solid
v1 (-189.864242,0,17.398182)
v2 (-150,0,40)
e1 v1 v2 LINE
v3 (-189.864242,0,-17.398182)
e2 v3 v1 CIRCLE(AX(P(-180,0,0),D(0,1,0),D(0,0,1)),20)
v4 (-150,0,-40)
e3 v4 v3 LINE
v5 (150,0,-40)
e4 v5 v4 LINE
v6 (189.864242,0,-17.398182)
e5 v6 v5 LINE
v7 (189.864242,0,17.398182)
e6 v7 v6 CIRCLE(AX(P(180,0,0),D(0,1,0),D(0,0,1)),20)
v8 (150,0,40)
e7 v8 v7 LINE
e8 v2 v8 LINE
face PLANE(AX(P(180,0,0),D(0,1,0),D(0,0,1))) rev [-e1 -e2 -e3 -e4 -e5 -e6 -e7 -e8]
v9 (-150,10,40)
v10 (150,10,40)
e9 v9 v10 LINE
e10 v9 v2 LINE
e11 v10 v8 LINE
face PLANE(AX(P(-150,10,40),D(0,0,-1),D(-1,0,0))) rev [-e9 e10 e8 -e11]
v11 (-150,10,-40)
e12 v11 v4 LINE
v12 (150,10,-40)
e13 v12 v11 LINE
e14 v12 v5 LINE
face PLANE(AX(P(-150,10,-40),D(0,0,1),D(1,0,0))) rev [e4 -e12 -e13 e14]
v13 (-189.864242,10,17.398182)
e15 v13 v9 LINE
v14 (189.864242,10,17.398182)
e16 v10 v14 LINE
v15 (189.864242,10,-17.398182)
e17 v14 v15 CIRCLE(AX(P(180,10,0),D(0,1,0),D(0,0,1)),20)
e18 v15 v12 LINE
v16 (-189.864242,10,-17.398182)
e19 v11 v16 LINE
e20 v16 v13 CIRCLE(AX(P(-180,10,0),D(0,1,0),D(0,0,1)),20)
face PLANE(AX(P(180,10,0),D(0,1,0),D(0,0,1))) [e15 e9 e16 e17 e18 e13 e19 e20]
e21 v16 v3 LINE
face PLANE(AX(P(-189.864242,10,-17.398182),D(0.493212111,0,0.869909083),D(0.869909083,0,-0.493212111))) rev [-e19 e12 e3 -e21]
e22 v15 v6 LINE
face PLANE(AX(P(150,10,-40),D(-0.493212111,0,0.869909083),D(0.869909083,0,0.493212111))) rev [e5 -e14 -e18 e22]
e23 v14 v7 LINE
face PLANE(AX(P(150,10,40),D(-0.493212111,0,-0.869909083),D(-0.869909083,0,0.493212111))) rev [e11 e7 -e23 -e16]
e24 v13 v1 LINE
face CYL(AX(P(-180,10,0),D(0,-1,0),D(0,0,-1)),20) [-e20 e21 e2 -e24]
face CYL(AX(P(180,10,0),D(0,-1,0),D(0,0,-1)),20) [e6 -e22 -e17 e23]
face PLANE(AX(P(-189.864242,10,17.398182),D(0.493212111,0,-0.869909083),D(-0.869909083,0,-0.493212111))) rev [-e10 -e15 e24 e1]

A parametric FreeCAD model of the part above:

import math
import FreeCAD as App
import Part
import Sketcher

V = App.Vector
Q = App.Units.Quantity

doc = App.newDocument("Part")
body = doc.addObject("PartDesign::Body", "Body")

# Sketch on XZ plane
sketch1 = body.newObject("Sketcher::SketchObject", "Sketch")
sketch1.AttachmentSupport = (doc.getObject("XZ_Plane"), [""])
sketch1.MapMode = "FlatFace"
sketch1.addGeometry([
    Part.LineSegment(V(-150, -40, 0), V(-189.864242, -17.398182, 0)),  # 0
    Part.ArcOfCircle(Part.Circle(V(-180, 0, 0), V(0, 0, 1), 20), math.radians(119.551924), math.radians(240.448076)),  # 1
    Part.LineSegment(V(-189.864242, 17.398182, 0), V(-150, 40, 0)),  # 2
    Part.LineSegment(V(-150, 40, 0), V(150, 40, 0)),  # 3
    Part.LineSegment(V(150, 40, 0), V(189.864242, 17.398182, 0)),  # 4
    Part.ArcOfCircle(Part.Circle(V(180, 0, 0), V(0, 0, 1), 20), math.radians(-60.448076), math.radians(60.448076)),  # 5
    Part.LineSegment(V(189.864242, -17.398182, 0), V(150, -40, 0)),  # 6
    Part.LineSegment(V(150, -40, 0), V(-150, -40, 0)),  # 7
], False)
sketch1.addConstraint([
    Sketcher.Constraint("Tangent", 0, 2, 1, 2),
    Sketcher.Constraint("Tangent", 1, 1, 2, 1),
    Sketcher.Constraint("Coincident", 2, 2, 3, 1),
    Sketcher.Constraint("Coincident", 3, 2, 4, 1),
    Sketcher.Constraint("Tangent", 4, 2, 5, 2),
    Sketcher.Constraint("Tangent", 5, 1, 6, 1),
    Sketcher.Constraint("Coincident", 6, 2, 7, 1),
    Sketcher.Constraint("Coincident", 7, 2, 0, 1),
    Sketcher.Constraint("Horizontal", 3),
    Sketcher.Constraint("Horizontal", 7),
    Sketcher.Constraint("Equal", 1, 5),
    Sketcher.Constraint("Symmetric", 1, 3, 5, 3, -1, 1),
    Sketcher.Constraint("Symmetric", 2, 2, 6, 2, -1, 1),
    Sketcher.Constraint("Symmetric", 1, 1, 4, 2, -2),
    Sketcher.Constraint("Parallel", 0, 4),
    Sketcher.Constraint("Radius", 1, Q("20 mm")),
    Sketcher.Constraint("DistanceX", 3, 1, 3, 2, Q("300 mm")),
    Sketcher.Constraint("DistanceX", 1, 3, -1, 1, Q("180 mm")),
    Sketcher.Constraint("DistanceY", -1, 1, 2, 2, Q("40 mm")),
])
pad1 = body.newObject("PartDesign::Pad", "Pad")
pad1.Profile = sketch1
pad1.Length = 10
pad1.Reversed = True

doc.recompute()
